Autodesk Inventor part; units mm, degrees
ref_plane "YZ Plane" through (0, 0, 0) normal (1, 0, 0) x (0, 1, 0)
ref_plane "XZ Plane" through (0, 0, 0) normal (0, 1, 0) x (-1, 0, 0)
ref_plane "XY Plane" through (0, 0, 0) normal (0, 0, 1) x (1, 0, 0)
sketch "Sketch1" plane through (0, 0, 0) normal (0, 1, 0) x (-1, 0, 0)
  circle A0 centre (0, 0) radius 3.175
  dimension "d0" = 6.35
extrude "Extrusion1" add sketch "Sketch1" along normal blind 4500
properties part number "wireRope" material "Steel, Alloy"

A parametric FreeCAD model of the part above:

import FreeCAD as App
import Part
import Sketcher
from FreeCAD import Vector

doc = App.newDocument("Part")
body = doc.addObject("PartDesign::Body", "Body")

# Sketch on XZ plane
sketch1 = body.newObject("Sketcher::SketchObject", "Sketch")
sketch1.AttachmentSupport = (doc.getObject("XZ_Plane"), [""])
sketch1.MapMode = "FlatFace"
sketch1.addGeometry(Part.Circle(Vector(0, 0, 0), Vector(0, 0, 1), 3.2), False)
sketch1.addConstraint([
    Sketcher.Constraint("Coincident", 0, 3, -1, 1),
    Sketcher.Constraint("Diameter", 0, 6.35),
])
pad1 = body.newObject("PartDesign::Pad", "Pad")
pad1.Profile = sketch1
pad1.Length = 4500
pad1.Reversed = True

doc.recompute()
